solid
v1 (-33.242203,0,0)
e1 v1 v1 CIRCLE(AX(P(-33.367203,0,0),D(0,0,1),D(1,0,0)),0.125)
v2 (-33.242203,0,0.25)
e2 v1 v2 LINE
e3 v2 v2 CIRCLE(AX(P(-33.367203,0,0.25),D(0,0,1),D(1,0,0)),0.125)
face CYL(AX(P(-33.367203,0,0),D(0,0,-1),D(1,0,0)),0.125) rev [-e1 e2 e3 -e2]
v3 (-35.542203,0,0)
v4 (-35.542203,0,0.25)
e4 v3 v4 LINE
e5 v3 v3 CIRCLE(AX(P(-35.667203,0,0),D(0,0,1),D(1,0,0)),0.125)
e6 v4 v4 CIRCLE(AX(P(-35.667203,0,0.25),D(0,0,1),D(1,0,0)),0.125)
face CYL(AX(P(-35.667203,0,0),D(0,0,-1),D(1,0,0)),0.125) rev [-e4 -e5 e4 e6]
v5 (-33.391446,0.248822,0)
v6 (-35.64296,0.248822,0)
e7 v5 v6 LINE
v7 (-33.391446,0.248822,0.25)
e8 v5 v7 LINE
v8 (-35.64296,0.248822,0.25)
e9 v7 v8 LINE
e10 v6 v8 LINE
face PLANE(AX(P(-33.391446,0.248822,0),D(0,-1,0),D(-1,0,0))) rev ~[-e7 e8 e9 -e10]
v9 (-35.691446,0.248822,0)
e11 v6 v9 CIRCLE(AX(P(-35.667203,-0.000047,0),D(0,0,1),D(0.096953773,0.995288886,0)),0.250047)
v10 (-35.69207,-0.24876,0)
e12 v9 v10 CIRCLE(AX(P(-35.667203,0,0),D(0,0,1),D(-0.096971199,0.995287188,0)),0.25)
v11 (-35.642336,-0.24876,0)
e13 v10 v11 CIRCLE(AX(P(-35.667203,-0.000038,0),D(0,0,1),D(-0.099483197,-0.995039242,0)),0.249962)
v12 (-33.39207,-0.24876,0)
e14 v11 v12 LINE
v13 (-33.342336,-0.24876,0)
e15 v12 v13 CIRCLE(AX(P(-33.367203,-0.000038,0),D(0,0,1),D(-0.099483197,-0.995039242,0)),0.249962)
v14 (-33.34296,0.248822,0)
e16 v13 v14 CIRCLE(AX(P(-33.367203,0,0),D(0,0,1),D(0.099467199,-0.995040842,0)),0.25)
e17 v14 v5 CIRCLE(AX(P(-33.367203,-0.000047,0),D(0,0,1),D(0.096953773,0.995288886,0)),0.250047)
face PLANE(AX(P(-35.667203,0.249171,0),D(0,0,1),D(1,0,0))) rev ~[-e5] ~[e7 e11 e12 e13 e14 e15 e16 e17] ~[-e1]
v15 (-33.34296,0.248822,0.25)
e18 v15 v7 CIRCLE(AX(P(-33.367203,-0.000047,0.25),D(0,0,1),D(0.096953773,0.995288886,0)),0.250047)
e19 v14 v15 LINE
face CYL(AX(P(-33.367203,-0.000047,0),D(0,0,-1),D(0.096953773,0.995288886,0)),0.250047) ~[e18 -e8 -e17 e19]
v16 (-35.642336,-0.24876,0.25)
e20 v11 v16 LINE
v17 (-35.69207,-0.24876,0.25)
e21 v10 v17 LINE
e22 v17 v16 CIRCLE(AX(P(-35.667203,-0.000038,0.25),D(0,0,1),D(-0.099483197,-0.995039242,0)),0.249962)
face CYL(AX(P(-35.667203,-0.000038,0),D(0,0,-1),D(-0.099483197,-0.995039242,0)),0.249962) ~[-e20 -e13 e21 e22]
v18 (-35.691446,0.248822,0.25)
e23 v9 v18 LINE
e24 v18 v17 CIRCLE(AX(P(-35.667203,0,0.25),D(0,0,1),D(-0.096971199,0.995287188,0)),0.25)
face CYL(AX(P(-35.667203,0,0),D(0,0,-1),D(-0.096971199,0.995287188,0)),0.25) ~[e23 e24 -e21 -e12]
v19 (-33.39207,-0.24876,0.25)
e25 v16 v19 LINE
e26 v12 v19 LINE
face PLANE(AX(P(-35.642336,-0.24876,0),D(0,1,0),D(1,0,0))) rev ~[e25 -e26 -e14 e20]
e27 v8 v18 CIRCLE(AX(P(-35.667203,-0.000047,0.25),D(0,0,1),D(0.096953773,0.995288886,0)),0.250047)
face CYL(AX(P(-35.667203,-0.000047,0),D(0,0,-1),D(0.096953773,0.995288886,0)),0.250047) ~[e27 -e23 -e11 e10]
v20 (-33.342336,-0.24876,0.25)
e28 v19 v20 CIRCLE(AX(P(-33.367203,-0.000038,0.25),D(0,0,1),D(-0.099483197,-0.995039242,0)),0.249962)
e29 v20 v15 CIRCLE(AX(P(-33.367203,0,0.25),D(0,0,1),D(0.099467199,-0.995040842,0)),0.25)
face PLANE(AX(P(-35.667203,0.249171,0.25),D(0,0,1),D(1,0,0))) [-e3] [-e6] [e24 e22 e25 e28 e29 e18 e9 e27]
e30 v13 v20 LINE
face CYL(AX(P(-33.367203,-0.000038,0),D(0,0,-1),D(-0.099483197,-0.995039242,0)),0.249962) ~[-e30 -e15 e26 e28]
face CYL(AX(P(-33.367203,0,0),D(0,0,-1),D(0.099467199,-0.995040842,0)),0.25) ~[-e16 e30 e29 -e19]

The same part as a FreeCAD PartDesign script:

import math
import FreeCAD as App
import Part
import Sketcher

V = App.Vector
Q = App.Units.Quantity

doc = App.newDocument("Part")
body = doc.addObject("PartDesign::Body", "Body")

# Sketch on XY plane
sketch1 = doc.addObject("Sketcher::SketchObject", "Sketch")
body.addObject(sketch1)
sketch1.AttachmentSupport = (doc.XY_Plane, [""])
sketch1.MapMode = "FlatFace"
sketch1.addGeometry([
    Part.ArcOfCircle(Part.Circle(V(-35.667, 0, 0), V(0, 0, 1), 0.25), math.radians(84.44), math.radians(95.56)),  # 0
    Part.ArcOfCircle(Part.Circle(V(-35.667, 0, 0), V(0, 0, 1), 0.25), math.radians(96), math.radians(264)),  # 1
    Part.ArcOfCircle(Part.Circle(V(-35.667, 0, 0), V(0, 0, 1), 0.25), math.radians(-95.71), math.radians(-84.29)),  # 2
    Part.LineSegment(V(-35.642, -0.249, 0), V(-33.392, -0.249, 0)),  # 3
    Part.ArcOfCircle(Part.Circle(V(-33.367, 0, 0), V(0, 0, 1), 0.25), math.radians(-95.71), math.radians(-84.29)),  # 4
    Part.ArcOfCircle(Part.Circle(V(-33.367, 0, 0), V(0, 0, 1), 0.25), math.radians(-84), math.radians(84)),  # 5
    Part.ArcOfCircle(Part.Circle(V(-33.367, 0, 0), V(0, 0, 1), 0.25), math.radians(84.44), math.radians(95.56)),  # 6
    Part.LineSegment(V(-33.391, 0.249, 0), V(-35.643, 0.249, 0)),  # 7
    Part.Circle(V(-35.667, 0, 0), V(0, 0, 1), 0.125),  # 8
    Part.Circle(V(-33.367, 0, 0), V(0, 0, 1), 0.125),  # 9
], False)
sketch1.addConstraint([
    Sketcher.Constraint("Coincident", 0, 2, 1, 1),
    Sketcher.Constraint("Coincident", 1, 2, 2, 1),
    Sketcher.Constraint("Coincident", 2, 2, 3, 1),
    Sketcher.Constraint("Coincident", 3, 2, 4, 1),
    Sketcher.Constraint("Coincident", 4, 2, 5, 1),
    Sketcher.Constraint("Coincident", 5, 2, 6, 1),
    Sketcher.Constraint("Coincident", 6, 2, 7, 1),
    Sketcher.Constraint("Coincident", 7, 2, 0, 1),
    Sketcher.Constraint("Horizontal", 3),
    Sketcher.Constraint("Horizontal", 7),
    Sketcher.Constraint("Coincident", 2, 3, 0, 3),
    Sketcher.Constraint("Coincident", 6, 3, 4, 3),
    Sketcher.Constraint("Coincident", 8, 3, 1, 3),
    Sketcher.Constraint("Coincident", 9, 3, 5, 3),
    Sketcher.Constraint("Equal", 2, 4),
    Sketcher.Constraint("Equal", 1, 5),
    Sketcher.Constraint("Equal", 0, 6),
    Sketcher.Constraint("Equal", 8, 9),
    Sketcher.Constraint("PointOnObject", 1, 3, -1),
    Sketcher.Constraint("PointOnObject", 5, 3, -1),
    Sketcher.Constraint("Horizontal", 1, 2, 2, 2),
    Sketcher.Constraint("Horizontal", 3, 2, 4, 2),
    Sketcher.Constraint("Horizontal", 0, 2, 5, 2),
    Sketcher.Constraint("Horizontal", 5, 2, 6, 2),
    Sketcher.Constraint("Vertical", 0, 3, 1, 3),
    Sketcher.Constraint("Diameter", 8, Q("0.25 mm")),
    Sketcher.Constraint("Radius", 1, Q("0.25 mm")),
    Sketcher.Constraint("DistanceX", 2, 3, 4, 3, Q("2.3 mm")),
    Sketcher.Constraint("Radius", 2, Q("0.249962 mm")),
    Sketcher.Constraint("DistanceX", 3, 1, 3, 2, Q("2.250266 mm")),
    Sketcher.Constraint("DistanceX", 7, 2, 7, 1, Q("2.251514 mm")),
    Sketcher.Constraint("DistanceX", 1, 2, -1, 1, Q("35.69207 mm")),
])
pad1 = doc.addObject("PartDesign::Pad", "Pad")
body.addObject(pad1)
pad1.Profile = sketch1
pad1.Length = 0.25

doc.recompute()
